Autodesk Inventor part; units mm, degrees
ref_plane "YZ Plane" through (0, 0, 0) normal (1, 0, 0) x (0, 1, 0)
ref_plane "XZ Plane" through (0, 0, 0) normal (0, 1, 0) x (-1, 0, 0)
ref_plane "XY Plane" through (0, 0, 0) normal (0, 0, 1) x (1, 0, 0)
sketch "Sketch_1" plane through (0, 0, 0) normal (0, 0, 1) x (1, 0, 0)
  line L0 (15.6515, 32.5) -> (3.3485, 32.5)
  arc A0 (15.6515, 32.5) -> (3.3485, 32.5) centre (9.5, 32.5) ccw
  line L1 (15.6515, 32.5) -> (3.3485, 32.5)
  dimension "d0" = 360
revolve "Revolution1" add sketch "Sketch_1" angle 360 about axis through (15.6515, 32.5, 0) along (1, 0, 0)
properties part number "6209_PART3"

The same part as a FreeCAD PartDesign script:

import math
import FreeCAD as App
import Part
import Sketcher

V = App.Vector
Q = App.Units.Quantity

doc = App.newDocument("Part")
body = doc.addObject("PartDesign::Body", "Body")

sketch1 = body.newObject("Sketcher::SketchObject", "Sketch")
sketch1.AttachmentSupport = (doc.getObject("XY_Plane"), [""])
sketch1.MapMode = "FlatFace"
sketch1.addGeometry([
    Part.LineSegment(V(3, 32, 0), V(16, 32, 0)),
    Part.ArcOfCircle(Part.Circle(V(10, 32, 0), V(0, 0, 1), 6), math.radians(0), math.radians(180)),
], False)
sketch1.addGeometry(Part.LineSegment(V(3, 32, 0), V(16, 32, 0)), True)
sketch1.addConstraint([
    Sketcher.Constraint("Coincident", 0, 1, 1, 2),
    Sketcher.Constraint("Coincident", 1, 1, 0, 2),
    Sketcher.Constraint("Horizontal", 0),
    Sketcher.Constraint("Horizontal", 2),
    Sketcher.Constraint("Coincident", 2, 1, 0, 1),
    Sketcher.Constraint("Horizontal", 1, 3, 0, 1),
    Sketcher.Constraint("Equal", 0, 2),
    Sketcher.Constraint("DistanceX", 0, 1, 0, 2, Q("0.4843701 in")),
    Sketcher.Constraint("DistanceX", -1, 1, 1, 1, Q("0.6162 in")),
    Sketcher.Constraint("DistanceY", -1, 1, 1, 3, 32.5),
])
revolution = body.newObject("PartDesign::Revolution", "Revolution")
revolution.Profile = sketch1
revolution.ReferenceAxis = (sketch1, ["Axis0"])
revolution.Angle = 360

doc.recompute()
